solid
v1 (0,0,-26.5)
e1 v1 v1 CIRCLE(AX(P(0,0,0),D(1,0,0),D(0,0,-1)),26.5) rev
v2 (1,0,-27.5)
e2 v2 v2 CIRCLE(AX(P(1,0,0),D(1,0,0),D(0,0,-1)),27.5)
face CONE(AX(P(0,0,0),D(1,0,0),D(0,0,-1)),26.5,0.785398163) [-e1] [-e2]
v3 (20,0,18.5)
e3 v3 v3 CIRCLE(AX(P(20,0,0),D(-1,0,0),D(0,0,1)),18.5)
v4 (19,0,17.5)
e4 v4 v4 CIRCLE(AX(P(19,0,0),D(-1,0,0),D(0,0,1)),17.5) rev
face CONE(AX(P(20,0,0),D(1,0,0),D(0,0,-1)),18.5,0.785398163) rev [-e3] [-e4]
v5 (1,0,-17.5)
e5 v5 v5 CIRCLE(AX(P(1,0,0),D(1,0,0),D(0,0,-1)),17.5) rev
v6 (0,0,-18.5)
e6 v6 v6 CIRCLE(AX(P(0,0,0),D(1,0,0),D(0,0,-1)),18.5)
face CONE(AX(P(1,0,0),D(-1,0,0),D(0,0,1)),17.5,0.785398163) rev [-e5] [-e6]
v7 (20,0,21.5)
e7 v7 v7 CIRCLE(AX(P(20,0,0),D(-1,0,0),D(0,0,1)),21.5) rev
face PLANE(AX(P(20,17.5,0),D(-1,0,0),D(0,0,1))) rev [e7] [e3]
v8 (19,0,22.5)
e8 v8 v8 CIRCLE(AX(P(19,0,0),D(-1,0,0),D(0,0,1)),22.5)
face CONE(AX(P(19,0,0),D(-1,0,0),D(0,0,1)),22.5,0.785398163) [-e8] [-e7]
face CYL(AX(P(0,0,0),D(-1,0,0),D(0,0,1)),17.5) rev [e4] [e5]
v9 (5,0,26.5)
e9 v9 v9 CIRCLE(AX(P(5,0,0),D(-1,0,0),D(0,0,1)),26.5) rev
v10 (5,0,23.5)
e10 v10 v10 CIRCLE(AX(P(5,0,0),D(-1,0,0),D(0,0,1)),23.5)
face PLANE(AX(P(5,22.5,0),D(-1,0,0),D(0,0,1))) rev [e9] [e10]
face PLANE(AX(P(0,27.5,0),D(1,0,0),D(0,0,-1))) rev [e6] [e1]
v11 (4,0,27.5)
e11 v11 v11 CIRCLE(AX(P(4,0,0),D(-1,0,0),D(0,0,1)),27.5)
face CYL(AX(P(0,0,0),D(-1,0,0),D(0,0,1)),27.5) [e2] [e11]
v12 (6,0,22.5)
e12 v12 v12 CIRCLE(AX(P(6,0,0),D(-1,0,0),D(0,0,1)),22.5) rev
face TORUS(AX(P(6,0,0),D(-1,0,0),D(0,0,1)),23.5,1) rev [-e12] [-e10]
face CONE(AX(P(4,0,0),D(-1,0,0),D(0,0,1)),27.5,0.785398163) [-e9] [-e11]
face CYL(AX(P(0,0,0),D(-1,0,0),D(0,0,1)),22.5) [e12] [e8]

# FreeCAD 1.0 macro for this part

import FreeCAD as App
import Part
import Sketcher
Q = App.Units.Quantity


def edges_at(feature, points):
    """Names of the edges that pass closest to the given points."""
    edges = feature.Shape.Edges
    near = lambda p: min(range(len(edges)), key=lambda i: edges[i].distToShape(Part.Vertex(*p))[0])
    return sorted({f"Edge{near(p) + 1}" for p in points})


def add_polygon(sketch, points):
    """Adds a closed chain of lines whose ends are joined by coincident constraints."""
    first, n = sketch.GeometryCount, len(points)
    for a, b in zip(points, points[1:] + points[:1]):
        sketch.addGeometry(Part.LineSegment(App.Vector(*a, 0), App.Vector(*b, 0)), False)
    for i in range(n):
        sketch.addConstraint(Sketcher.Constraint("Coincident", first + i, 2, first + (i + 1) % n, 1))

doc = App.newDocument("Part")
body = doc.addObject("PartDesign::Body", "Body")

# Sketch on XY plane
sketch1 = body.newObject("Sketcher::SketchObject", "Sketch")
sketch1.AttachmentSupport = (doc.getObject("XY_Plane"), [""])
sketch1.MapMode = "FlatFace"
add_polygon(sketch1, [(0, 17.5), (20, 17.5), (20, 22.5), (5, 22.5), (5, 27.5), (0, 27.5)])  # lines 0-5
sketch1.addConstraint([
    Sketcher.Constraint("Horizontal", 0),
    Sketcher.Constraint("Vertical", 1),
    Sketcher.Constraint("Horizontal", 2),
    Sketcher.Constraint("Vertical", 3),
    Sketcher.Constraint("Horizontal", 4),
    Sketcher.Constraint("Vertical", 5),
    Sketcher.Constraint("PointOnObject", 4, 2, -2),
    Sketcher.Constraint("Equal", 4, 1),
    Sketcher.Constraint("Equal", 1, 3),
    Sketcher.Constraint("DistanceX", 0, 1, 0, 2, Q("20 mm")),
    Sketcher.Constraint("DistanceX", 2, 2, 2, 1, Q("15 mm")),
    Sketcher.Constraint("DistanceY", -1, 1, 0, 2, Q("17.5 mm")),
])
revolution = body.newObject("PartDesign::Revolution", "Revolution")
revolution.Profile = sketch1
revolution.ReferenceAxis = (sketch1, ["H_Axis"])
revolution.Angle = 360
doc.recompute()

chamfer = body.newObject("PartDesign::Chamfer", "Chamfer")
chamfer.Base = (revolution, edges_at(revolution, [
    (0, 0, -27.5),
    (5, 0, -27.5),
    (20, 0, -22.5),
    (20, 0, -17.5),
    (0, 0, -17.5),
]))
chamfer.Size = 1
doc.recompute()

fillet = body.newObject("PartDesign::Fillet", "Fillet")
fillet.Base = (chamfer, edges_at(chamfer, [(5, 0, -22.5)]))
fillet.Radius = 1

doc.recompute()
